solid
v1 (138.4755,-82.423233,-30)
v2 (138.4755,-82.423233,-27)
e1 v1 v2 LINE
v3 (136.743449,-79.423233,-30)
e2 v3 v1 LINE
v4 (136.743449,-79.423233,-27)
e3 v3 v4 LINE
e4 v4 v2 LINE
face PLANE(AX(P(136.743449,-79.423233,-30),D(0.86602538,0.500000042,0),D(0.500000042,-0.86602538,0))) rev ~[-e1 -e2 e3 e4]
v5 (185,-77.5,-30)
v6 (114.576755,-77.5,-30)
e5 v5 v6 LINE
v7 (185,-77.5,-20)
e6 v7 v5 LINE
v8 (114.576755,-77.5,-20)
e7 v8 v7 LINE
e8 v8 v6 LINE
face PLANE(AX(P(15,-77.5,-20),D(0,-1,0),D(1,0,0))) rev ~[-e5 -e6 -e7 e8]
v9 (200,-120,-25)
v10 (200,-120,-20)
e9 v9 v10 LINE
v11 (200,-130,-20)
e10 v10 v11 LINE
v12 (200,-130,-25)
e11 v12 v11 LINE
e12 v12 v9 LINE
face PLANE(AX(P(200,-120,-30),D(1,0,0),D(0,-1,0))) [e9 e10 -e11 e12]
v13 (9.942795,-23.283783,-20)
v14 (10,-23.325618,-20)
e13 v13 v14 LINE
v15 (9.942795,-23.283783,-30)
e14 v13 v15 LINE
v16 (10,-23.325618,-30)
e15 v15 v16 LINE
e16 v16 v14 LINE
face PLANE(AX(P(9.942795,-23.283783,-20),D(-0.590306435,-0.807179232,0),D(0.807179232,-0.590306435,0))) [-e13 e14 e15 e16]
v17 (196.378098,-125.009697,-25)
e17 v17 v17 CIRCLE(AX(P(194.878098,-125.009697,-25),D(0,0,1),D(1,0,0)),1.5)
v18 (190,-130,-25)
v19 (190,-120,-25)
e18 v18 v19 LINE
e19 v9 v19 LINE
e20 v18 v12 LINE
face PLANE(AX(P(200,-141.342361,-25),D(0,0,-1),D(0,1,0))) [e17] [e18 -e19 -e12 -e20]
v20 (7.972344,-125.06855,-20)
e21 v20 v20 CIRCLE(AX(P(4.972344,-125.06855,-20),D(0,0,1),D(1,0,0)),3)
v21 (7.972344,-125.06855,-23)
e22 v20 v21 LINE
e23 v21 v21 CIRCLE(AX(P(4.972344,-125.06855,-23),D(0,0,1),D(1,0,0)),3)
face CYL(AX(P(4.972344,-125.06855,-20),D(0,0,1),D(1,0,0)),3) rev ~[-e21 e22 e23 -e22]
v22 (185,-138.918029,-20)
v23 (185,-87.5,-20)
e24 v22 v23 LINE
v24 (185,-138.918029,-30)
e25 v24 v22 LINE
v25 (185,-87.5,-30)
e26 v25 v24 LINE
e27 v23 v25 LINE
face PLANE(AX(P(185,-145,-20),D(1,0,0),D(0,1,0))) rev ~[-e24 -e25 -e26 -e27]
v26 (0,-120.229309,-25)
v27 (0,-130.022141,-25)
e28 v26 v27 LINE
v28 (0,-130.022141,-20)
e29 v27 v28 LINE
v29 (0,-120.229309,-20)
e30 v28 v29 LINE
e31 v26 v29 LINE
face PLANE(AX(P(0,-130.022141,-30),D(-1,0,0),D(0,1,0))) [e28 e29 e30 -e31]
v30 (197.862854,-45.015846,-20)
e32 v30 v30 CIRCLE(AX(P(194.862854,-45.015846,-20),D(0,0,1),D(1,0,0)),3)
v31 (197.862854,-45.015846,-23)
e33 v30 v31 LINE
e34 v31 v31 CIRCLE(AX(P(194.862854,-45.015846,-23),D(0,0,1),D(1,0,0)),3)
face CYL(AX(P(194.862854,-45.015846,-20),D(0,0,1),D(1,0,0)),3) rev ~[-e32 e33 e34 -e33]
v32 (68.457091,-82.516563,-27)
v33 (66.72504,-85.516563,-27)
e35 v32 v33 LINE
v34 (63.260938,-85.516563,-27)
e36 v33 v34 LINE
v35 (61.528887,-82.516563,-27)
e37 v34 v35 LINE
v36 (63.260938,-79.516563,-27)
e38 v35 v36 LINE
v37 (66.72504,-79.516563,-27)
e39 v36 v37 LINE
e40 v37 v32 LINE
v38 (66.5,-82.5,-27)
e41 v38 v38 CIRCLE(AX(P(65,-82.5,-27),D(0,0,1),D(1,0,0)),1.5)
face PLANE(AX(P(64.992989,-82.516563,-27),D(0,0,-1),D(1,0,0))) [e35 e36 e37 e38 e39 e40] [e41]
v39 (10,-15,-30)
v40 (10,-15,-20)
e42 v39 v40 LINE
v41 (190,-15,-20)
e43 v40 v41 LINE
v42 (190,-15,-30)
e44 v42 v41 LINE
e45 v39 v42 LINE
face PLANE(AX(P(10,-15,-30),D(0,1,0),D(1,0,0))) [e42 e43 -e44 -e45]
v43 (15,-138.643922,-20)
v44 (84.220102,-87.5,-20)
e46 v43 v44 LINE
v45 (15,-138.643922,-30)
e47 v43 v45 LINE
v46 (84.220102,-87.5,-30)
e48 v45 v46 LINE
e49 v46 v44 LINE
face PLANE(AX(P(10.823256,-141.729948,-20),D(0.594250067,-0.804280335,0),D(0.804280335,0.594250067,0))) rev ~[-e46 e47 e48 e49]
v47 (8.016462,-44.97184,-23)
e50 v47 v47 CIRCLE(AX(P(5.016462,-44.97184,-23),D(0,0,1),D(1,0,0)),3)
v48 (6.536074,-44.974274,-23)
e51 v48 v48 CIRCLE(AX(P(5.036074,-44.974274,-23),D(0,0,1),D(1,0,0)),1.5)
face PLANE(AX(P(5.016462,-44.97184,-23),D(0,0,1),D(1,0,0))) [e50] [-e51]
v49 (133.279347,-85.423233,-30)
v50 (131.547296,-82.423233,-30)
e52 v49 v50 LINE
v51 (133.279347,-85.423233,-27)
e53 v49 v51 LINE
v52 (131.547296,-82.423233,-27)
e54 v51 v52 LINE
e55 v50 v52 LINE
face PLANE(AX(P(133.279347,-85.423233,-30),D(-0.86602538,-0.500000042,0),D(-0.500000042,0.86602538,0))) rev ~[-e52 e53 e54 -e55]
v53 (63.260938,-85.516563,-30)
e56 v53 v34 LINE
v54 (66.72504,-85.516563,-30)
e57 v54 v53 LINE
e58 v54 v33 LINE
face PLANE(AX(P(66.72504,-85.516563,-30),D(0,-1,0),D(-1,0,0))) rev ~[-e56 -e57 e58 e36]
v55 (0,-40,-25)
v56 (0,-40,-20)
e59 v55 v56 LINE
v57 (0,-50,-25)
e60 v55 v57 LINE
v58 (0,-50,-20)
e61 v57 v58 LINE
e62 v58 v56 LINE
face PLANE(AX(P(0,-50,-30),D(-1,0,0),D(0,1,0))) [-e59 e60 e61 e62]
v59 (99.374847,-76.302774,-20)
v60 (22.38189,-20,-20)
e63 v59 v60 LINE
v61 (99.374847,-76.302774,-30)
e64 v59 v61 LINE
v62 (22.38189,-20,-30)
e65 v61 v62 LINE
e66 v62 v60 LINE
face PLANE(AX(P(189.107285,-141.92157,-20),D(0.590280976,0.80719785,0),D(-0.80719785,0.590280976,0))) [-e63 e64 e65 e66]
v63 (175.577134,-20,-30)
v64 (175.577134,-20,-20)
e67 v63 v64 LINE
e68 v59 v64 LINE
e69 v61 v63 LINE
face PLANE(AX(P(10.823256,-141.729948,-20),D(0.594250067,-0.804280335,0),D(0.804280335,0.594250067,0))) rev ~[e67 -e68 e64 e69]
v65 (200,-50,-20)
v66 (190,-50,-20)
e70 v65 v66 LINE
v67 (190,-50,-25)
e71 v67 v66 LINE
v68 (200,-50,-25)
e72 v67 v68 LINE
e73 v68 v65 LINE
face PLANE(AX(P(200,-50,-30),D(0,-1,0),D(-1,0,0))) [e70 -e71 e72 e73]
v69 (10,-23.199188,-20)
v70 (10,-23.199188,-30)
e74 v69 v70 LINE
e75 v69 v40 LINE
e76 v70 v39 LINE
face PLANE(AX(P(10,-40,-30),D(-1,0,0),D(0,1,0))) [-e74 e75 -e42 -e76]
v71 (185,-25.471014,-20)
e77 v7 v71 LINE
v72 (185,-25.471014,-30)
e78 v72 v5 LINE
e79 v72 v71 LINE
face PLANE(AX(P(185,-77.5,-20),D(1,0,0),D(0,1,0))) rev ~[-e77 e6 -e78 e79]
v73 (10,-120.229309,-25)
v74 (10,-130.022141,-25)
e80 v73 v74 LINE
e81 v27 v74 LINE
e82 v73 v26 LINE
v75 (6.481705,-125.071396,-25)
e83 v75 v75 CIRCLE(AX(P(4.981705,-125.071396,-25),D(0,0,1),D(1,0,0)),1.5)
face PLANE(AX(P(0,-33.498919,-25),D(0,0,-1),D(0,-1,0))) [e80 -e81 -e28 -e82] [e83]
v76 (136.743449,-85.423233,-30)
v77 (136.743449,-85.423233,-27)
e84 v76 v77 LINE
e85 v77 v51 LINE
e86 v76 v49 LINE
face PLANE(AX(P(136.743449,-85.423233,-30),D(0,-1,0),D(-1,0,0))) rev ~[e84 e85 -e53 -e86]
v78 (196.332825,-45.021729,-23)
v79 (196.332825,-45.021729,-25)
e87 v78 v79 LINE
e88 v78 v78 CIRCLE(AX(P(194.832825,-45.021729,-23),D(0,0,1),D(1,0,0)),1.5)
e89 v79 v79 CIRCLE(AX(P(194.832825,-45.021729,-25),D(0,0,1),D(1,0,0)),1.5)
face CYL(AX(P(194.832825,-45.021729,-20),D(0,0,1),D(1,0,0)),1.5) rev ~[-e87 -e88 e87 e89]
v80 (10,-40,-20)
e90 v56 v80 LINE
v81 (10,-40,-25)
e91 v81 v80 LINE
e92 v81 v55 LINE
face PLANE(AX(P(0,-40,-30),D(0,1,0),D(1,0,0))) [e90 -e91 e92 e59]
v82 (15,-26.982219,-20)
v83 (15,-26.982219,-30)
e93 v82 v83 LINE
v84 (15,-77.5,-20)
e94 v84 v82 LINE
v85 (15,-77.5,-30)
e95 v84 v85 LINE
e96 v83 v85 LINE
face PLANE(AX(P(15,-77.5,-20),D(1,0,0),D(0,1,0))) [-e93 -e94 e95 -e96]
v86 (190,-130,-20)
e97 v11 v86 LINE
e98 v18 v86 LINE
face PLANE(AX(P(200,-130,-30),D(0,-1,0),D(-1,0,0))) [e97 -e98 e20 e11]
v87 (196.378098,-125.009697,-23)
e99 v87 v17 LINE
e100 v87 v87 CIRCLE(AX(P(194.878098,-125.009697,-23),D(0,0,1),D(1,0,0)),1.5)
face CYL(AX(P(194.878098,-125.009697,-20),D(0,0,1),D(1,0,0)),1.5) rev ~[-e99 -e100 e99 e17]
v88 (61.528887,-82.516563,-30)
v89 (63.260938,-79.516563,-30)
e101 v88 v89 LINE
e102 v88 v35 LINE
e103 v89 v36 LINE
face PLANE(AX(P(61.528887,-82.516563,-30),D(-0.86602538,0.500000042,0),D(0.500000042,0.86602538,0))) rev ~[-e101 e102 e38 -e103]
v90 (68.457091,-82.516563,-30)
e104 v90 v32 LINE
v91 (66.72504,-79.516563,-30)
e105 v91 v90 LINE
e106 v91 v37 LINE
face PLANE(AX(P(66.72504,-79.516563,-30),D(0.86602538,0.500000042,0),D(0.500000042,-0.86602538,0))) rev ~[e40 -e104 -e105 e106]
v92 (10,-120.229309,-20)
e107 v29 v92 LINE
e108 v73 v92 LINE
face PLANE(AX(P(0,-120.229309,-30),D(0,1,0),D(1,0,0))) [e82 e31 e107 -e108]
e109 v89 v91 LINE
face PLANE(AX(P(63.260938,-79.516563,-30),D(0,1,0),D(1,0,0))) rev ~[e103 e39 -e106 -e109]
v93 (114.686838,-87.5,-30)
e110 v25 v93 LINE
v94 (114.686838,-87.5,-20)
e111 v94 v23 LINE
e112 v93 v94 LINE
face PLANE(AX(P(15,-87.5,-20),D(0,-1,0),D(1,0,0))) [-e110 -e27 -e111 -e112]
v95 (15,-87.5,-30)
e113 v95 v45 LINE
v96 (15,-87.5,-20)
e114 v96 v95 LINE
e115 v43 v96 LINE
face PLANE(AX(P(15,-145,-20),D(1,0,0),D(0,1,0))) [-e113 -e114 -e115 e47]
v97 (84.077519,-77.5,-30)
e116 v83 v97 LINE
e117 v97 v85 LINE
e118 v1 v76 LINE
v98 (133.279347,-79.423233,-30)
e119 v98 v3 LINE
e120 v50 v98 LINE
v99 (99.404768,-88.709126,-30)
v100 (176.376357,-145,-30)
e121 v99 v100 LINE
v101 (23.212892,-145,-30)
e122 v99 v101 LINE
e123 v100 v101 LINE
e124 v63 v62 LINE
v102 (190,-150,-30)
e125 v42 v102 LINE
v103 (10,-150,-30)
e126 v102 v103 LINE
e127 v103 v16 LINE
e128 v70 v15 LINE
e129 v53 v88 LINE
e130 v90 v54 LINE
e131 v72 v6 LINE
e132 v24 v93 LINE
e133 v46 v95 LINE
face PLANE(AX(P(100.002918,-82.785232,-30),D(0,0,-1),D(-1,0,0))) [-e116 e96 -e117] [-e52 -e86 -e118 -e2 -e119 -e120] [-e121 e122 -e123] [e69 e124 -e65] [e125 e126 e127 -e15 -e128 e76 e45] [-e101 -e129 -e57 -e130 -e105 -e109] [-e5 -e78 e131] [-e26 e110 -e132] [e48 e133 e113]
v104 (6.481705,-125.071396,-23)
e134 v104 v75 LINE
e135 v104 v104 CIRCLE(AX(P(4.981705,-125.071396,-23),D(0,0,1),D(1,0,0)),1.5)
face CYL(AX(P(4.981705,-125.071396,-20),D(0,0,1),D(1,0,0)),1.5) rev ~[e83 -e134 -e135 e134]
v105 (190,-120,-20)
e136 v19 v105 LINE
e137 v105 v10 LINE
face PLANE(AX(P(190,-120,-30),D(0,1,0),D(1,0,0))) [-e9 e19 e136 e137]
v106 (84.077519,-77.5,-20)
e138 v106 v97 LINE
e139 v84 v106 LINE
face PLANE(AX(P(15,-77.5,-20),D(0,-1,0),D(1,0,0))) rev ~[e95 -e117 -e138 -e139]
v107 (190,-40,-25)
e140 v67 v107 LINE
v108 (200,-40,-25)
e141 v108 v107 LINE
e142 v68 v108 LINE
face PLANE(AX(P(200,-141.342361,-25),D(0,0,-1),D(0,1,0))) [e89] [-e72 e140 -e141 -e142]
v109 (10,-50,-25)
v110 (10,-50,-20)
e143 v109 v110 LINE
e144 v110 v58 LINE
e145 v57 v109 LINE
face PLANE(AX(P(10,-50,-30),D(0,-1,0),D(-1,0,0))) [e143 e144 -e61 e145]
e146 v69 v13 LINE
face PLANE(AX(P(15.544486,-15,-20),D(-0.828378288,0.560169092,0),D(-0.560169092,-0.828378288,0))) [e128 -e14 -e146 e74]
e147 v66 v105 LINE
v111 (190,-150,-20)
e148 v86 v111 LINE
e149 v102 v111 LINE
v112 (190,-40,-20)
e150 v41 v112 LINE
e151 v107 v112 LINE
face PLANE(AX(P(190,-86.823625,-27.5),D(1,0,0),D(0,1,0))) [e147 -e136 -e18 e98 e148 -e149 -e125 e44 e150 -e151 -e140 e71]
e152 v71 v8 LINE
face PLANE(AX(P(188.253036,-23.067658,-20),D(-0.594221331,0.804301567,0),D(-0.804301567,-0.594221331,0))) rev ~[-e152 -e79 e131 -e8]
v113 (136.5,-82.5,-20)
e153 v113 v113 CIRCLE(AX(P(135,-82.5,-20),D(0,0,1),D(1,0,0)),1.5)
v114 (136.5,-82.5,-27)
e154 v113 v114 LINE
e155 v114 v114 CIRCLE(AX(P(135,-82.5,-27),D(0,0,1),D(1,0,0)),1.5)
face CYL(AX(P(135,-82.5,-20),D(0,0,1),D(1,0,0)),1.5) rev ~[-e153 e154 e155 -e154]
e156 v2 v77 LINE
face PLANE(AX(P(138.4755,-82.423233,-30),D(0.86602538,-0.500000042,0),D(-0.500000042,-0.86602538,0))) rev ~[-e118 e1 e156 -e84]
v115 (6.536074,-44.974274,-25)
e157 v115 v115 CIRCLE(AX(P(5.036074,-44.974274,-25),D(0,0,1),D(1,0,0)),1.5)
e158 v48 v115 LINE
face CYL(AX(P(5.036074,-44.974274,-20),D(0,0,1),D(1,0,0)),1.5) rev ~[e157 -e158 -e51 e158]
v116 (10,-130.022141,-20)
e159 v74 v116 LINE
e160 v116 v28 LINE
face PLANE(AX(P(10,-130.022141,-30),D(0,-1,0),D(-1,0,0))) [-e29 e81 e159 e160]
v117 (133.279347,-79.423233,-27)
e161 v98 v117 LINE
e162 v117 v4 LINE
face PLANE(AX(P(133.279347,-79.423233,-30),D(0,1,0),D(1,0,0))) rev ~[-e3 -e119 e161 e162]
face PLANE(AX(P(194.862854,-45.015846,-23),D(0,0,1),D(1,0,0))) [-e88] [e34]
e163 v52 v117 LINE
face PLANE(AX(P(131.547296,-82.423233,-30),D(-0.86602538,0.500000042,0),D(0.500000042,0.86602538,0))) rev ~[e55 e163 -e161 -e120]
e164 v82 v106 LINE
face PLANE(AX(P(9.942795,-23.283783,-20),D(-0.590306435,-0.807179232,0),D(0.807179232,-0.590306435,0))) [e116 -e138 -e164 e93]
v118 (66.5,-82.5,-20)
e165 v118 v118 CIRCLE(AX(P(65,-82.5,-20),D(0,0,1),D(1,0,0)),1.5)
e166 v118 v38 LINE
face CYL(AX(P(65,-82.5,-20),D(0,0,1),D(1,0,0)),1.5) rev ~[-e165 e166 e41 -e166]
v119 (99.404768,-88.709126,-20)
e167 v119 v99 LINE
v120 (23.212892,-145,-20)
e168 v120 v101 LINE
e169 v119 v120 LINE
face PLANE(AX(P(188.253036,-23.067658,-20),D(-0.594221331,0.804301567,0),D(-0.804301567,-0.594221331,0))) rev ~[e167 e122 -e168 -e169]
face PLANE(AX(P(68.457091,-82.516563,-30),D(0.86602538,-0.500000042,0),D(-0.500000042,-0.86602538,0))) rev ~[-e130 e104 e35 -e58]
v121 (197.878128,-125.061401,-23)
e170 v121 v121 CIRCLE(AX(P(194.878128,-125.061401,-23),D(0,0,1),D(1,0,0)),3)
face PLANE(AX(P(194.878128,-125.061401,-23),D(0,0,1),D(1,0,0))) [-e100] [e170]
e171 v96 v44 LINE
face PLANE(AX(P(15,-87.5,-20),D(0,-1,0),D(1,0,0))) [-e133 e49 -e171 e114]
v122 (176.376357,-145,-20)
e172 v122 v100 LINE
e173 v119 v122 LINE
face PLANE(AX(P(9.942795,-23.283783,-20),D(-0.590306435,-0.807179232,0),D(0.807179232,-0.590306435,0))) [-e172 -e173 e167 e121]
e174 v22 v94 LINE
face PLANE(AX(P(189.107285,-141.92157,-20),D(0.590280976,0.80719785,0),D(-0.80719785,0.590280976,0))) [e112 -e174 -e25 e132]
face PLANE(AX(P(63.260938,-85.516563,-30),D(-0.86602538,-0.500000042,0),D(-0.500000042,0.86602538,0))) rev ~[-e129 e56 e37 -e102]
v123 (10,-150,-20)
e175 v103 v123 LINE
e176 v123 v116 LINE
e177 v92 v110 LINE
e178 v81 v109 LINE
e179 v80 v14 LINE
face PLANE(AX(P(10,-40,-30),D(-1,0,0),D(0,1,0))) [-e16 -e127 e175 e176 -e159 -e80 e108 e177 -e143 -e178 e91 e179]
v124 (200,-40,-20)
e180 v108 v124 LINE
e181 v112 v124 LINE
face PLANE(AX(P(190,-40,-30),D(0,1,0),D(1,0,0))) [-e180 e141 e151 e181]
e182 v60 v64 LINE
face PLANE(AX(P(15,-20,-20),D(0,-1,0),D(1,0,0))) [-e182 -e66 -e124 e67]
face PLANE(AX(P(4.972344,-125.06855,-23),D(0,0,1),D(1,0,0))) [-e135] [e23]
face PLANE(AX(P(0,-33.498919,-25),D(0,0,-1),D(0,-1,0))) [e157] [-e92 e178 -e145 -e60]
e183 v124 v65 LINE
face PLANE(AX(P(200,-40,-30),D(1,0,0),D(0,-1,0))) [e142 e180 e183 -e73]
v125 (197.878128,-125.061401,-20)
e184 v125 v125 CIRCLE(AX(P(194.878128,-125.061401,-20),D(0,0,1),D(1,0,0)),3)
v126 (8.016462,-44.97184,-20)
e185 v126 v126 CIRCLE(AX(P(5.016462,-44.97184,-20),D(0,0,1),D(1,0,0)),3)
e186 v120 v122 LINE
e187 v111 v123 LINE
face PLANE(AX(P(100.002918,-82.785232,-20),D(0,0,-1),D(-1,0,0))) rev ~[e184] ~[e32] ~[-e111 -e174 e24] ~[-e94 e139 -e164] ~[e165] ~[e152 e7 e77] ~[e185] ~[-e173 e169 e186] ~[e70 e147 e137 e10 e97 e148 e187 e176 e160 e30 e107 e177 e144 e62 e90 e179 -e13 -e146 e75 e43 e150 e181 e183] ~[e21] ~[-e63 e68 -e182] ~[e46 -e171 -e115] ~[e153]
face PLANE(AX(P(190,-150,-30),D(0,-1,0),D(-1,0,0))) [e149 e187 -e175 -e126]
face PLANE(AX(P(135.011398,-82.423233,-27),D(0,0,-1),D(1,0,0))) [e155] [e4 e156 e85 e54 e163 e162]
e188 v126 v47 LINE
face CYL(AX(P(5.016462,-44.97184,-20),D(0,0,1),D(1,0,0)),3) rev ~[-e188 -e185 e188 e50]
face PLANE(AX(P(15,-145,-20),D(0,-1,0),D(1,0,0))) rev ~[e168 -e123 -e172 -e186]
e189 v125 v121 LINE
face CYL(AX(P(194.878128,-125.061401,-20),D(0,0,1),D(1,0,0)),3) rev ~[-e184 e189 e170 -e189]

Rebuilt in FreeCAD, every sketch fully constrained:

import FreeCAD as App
import Part
import Sketcher
Q = App.Units.Quantity

doc = App.newDocument("Part")
body = doc.addObject("PartDesign::Body", "Body")

sketch1 = body.newObject("Sketcher::SketchObject", "Sketch")
sketch1.AttachmentSupport = (doc.getObject("XY_Plane"), [""])
sketch1.MapMode = "FlatFace"
sketch1.AttachmentOffset = App.Placement(App.Vector(0, 0, -30), App.Rotation())
sketch1.addGeometry(Part.LineSegment(App.Vector(0, -50, 0), App.Vector(10, -50, 0)), False)
sketch1.addGeometry(Part.LineSegment(App.Vector(10, -50, 0), App.Vector(10, -120, 0)), False)
sketch1.addGeometry(Part.LineSegment(App.Vector(10, -120, 0), App.Vector(0, -120, 0)), False)
sketch1.addGeometry(Part.LineSegment(App.Vector(0, -120, 0), App.Vector(0, -130, 0)), False)
sketch1.addGeometry(Part.LineSegment(App.Vector(0, -130, 0), App.Vector(10, -130, 0)), False)
sketch1.addGeometry(Part.LineSegment(App.Vector(10, -130, 0), App.Vector(10, -150, 0)), False)
sketch1.addGeometry(Part.LineSegment(App.Vector(10, -150, 0), App.Vector(190, -150, 0)), False)
sketch1.addGeometry(Part.LineSegment(App.Vector(190, -150, 0), App.Vector(190, -130, 0)), False)
sketch1.addGeometry(Part.LineSegment(App.Vector(190, -130, 0), App.Vector(200, -130, 0)), False)
sketch1.addGeometry(Part.LineSegment(App.Vector(200, -130, 0), App.Vector(200, -120, 0)), False)
sketch1.addGeometry(Part.LineSegment(App.Vector(200, -120, 0), App.Vector(190, -120, 0)), False)
sketch1.addGeometry(Part.LineSegment(App.Vector(190, -120, 0), App.Vector(190, -50, 0)), False)
sketch1.addGeometry(Part.LineSegment(App.Vector(190, -50, 0), App.Vector(200, -50, 0)), False)
sketch1.addGeometry(Part.LineSegment(App.Vector(200, -50, 0), App.Vector(200, -40, 0)), False)
sketch1.addGeometry(Part.LineSegment(App.Vector(200, -40, 0), App.Vector(190, -40, 0)), False)
sketch1.addGeometry(Part.LineSegment(App.Vector(190, -40, 0), App.Vector(190, -15, 0)), False)
sketch1.addGeometry(Part.LineSegment(App.Vector(190, -15, 0), App.Vector(10, -15, 0)), False)
sketch1.addGeometry(Part.LineSegment(App.Vector(10, -15, 0), App.Vector(10, -40, 0)), False)
sketch1.addGeometry(Part.LineSegment(App.Vector(10, -40, 0), App.Vector(0, -40, 0)), False)
sketch1.addGeometry(Part.LineSegment(App.Vector(0, -40, 0), App.Vector(0, -50, 0)), False)
sketch1.addConstraint(Sketcher.Constraint("Coincident", 0, 2, 1, 1))
sketch1.addConstraint(Sketcher.Constraint("Coincident", 1, 2, 2, 1))
sketch1.addConstraint(Sketcher.Constraint("Coincident", 2, 2, 3, 1))
sketch1.addConstraint(Sketcher.Constraint("Coincident", 3, 2, 4, 1))
sketch1.addConstraint(Sketcher.Constraint("Coincident", 4, 2, 5, 1))
sketch1.addConstraint(Sketcher.Constraint("Coincident", 5, 2, 6, 1))
sketch1.addConstraint(Sketcher.Constraint("Coincident", 6, 2, 7, 1))
sketch1.addConstraint(Sketcher.Constraint("Coincident", 7, 2, 8, 1))
sketch1.addConstraint(Sketcher.Constraint("Coincident", 8, 2, 9, 1))
sketch1.addConstraint(Sketcher.Constraint("Coincident", 9, 2, 10, 1))
sketch1.addConstraint(Sketcher.Constraint("Coincident", 10, 2, 11, 1))
sketch1.addConstraint(Sketcher.Constraint("Coincident", 11, 2, 12, 1))
sketch1.addConstraint(Sketcher.Constraint("Coincident", 12, 2, 13, 1))
sketch1.addConstraint(Sketcher.Constraint("Coincident", 13, 2, 14, 1))
sketch1.addConstraint(Sketcher.Constraint("Coincident", 14, 2, 15, 1))
sketch1.addConstraint(Sketcher.Constraint("Coincident", 15, 2, 16, 1))
sketch1.addConstraint(Sketcher.Constraint("Coincident", 16, 2, 17, 1))
sketch1.addConstraint(Sketcher.Constraint("Coincident", 17, 2, 18, 1))
sketch1.addConstraint(Sketcher.Constraint("Coincident", 18, 2, 19, 1))
sketch1.addConstraint(Sketcher.Constraint("Coincident", 19, 2, 0, 1))
sketch1.addConstraint(Sketcher.Constraint("Horizontal", 0))
sketch1.addConstraint(Sketcher.Constraint("Vertical", 1))
sketch1.addConstraint(Sketcher.Constraint("Horizontal", 2))
sketch1.addConstraint(Sketcher.Constraint("Vertical", 3))
sketch1.addConstraint(Sketcher.Constraint("Horizontal", 4))
sketch1.addConstraint(Sketcher.Constraint("Vertical", 5))
sketch1.addConstraint(Sketcher.Constraint("Horizontal", 6))
sketch1.addConstraint(Sketcher.Constraint("Vertical", 7))
sketch1.addConstraint(Sketcher.Constraint("Horizontal", 8))
sketch1.addConstraint(Sketcher.Constraint("Vertical", 9))
sketch1.addConstraint(Sketcher.Constraint("Horizontal", 10))
sketch1.addConstraint(Sketcher.Constraint("Vertical", 11))
sketch1.addConstraint(Sketcher.Constraint("Horizontal", 12))
sketch1.addConstraint(Sketcher.Constraint("Vertical", 13))
sketch1.addConstraint(Sketcher.Constraint("Horizontal", 14))
sketch1.addConstraint(Sketcher.Constraint("Vertical", 15))
sketch1.addConstraint(Sketcher.Constraint("Horizontal", 16))
sketch1.addConstraint(Sketcher.Constraint("Vertical", 17))
sketch1.addConstraint(Sketcher.Constraint("Horizontal", 18))
sketch1.addConstraint(Sketcher.Constraint("Vertical", 19))
sketch1.addConstraint(Sketcher.Constraint("PointOnObject", 2, 2, -2))
sketch1.addConstraint(Sketcher.Constraint("PointOnObject", 18, 2, -2))
sketch1.addConstraint(Sketcher.Constraint("Horizontal", 0, 2, 11, 2))
sketch1.addConstraint(Sketcher.Constraint("Horizontal", 14, 2, 17, 2))
sketch1.addConstraint(Sketcher.Constraint("Vertical", 1, 2, 4, 2))
sketch1.addConstraint(Sketcher.Constraint("Vertical", 7, 2, 10, 2))
sketch1.addConstraint(Sketcher.Constraint("Vertical", 9, 2, 12, 2))
sketch1.addConstraint(Sketcher.Constraint("Vertical", 11, 2, 14, 2))
sketch1.addConstraint(Sketcher.Constraint("Vertical", 5, 2, 16, 2))
sketch1.addConstraint(Sketcher.Constraint("Equal", 4, 8))
sketch1.addConstraint(Sketcher.Constraint("Equal", 18, 9))
sketch1.addConstraint(Sketcher.Constraint("Equal", 9, 13))
sketch1.addConstraint(Sketcher.Constraint("DistanceX", 0, 1, 0, 2, Q("10 mm")))
sketch1.addConstraint(Sketcher.Constraint("DistanceX", 6, 1, 6, 2, Q("180 mm")))
sketch1.addConstraint(Sketcher.Constraint("DistanceY", 7, 1, 7, 2, Q("20 mm")))
sketch1.addConstraint(Sketcher.Constraint("DistanceY", 11, 1, 11, 2, Q("70 mm")))
sketch1.addConstraint(Sketcher.Constraint("DistanceY", 15, 1, 15, 2, Q("25 mm")))
sketch1.addConstraint(Sketcher.Constraint("DistanceY", 0, 2, -1, 1, Q("50 mm")))
sketch1.addConstraint(Sketcher.Constraint("DistanceY", 1, 2, 1, 1, Q("70.229309 mm")))
sketch1.addConstraint(Sketcher.Constraint("DistanceY", 5, 2, 5, 1, Q("19.977859 mm")))
pad1 = body.newObject("PartDesign::Pad", "Pad")
pad1.Profile = sketch1
pad1.Length = 10

sketch2 = body.newObject("Sketcher::SketchObject", "Sketch001")
sketch2.AttachmentSupport = (doc.getObject("XY_Plane"), [""])
sketch2.MapMode = "FlatFace"
sketch2.AttachmentOffset = App.Placement(App.Vector(0, 0, -20), App.Rotation())
sketch2.addGeometry(Part.Circle(App.Vector(65, -82.5, 0), App.Vector(0, 0, 1), 1.5), False)
sketch2.addGeometry(Part.Circle(App.Vector(135, -82.5, 0), App.Vector(0, 0, 1), 1.5), False)
sketch2.addGeometry(Part.LineSegment(App.Vector(15, -20, 0), App.Vector(15, -77.5, 0)), False)
sketch2.addGeometry(Part.LineSegment(App.Vector(15, -77.5, 0), App.Vector(185, -77.5, 0)), False)
sketch2.addGeometry(Part.LineSegment(App.Vector(185, -77.5, 0), App.Vector(185, -20, 0)), False)
sketch2.addGeometry(Part.LineSegment(App.Vector(185, -20, 0), App.Vector(15, -20, 0)), False)
sketch2.addGeometry(Part.LineSegment(App.Vector(15, -87.5, 0), App.Vector(15, -145, 0)), False)
sketch2.addGeometry(Part.LineSegment(App.Vector(15, -145, 0), App.Vector(185, -145, 0)), False)
sketch2.addGeometry(Part.LineSegment(App.Vector(185, -145, 0), App.Vector(185, -87.5, 0)), False)
sketch2.addGeometry(Part.LineSegment(App.Vector(185, -87.5, 0), App.Vector(15, -87.5, 0)), False)
sketch2.addConstraint(Sketcher.Constraint("Coincident", 2, 2, 3, 1))
sketch2.addConstraint(Sketcher.Constraint("Coincident", 3, 2, 4, 1))
sketch2.addConstraint(Sketcher.Constraint("Coincident", 4, 2, 5, 1))
sketch2.addConstraint(Sketcher.Constraint("Coincident", 5, 2, 2, 1))
sketch2.addConstraint(Sketcher.Constraint("Coincident", 6, 2, 7, 1))
sketch2.addConstraint(Sketcher.Constraint("Coincident", 7, 2, 8, 1))
sketch2.addConstraint(Sketcher.Constraint("Coincident", 8, 2, 9, 1))
sketch2.addConstraint(Sketcher.Constraint("Coincident", 9, 2, 6, 1))
sketch2.addConstraint(Sketcher.Constraint("Vertical", 2))
sketch2.addConstraint(Sketcher.Constraint("Horizontal", 3))
sketch2.addConstraint(Sketcher.Constraint("Vertical", 4))
sketch2.addConstraint(Sketcher.Constraint("Horizontal", 5))
sketch2.addConstraint(Sketcher.Constraint("Vertical", 6))
sketch2.addConstraint(Sketcher.Constraint("Horizontal", 7))
sketch2.addConstraint(Sketcher.Constraint("Vertical", 8))
sketch2.addConstraint(Sketcher.Constraint("Horizontal", 9))
sketch2.addConstraint(Sketcher.Constraint("Equal", 0, 1))
sketch2.addConstraint(Sketcher.Constraint("Horizontal", 0, 3, 1, 3))
sketch2.addConstraint(Sketcher.Constraint("Vertical", 5, 2, 6, 2))
sketch2.addConstraint(Sketcher.Constraint("Vertical", 4, 2, 7, 2))
sketch2.addConstraint(Sketcher.Constraint("Equal", 4, 6))
sketch2.addConstraint(Sketcher.Constraint("Diameter", 0, Q("3 mm")))
sketch2.addConstraint(Sketcher.Constraint("DistanceX", 3, 1, 3, 2, Q("170 mm")))
sketch2.addConstraint(Sketcher.Constraint("DistanceY", 2, 2, 2, 1, Q("57.5 mm")))
sketch2.addConstraint(Sketcher.Constraint("DistanceX", -1, 1, 0, 3, Q("65 mm")))
sketch2.addConstraint(Sketcher.Constraint("DistanceX", -1, 1, 1, 3, Q("135 mm")))
sketch2.addConstraint(Sketcher.Constraint("DistanceX", -1, 1, 2, 2, Q("15 mm")))
sketch2.addConstraint(Sketcher.Constraint("DistanceY", 4, 2, -1, 1, Q("20 mm")))
sketch2.addConstraint(Sketcher.Constraint("DistanceY", 6, 2, -1, 1, Q("145 mm")))
sketch2.addConstraint(Sketcher.Constraint("DistanceY", 0, 3, 2, 2, Q("5 mm")))
pocket1 = body.newObject("PartDesign::Pocket", "Pocket")
pocket1.Profile = sketch2
pocket1.Length = 11

sketch3 = body.newObject("Sketcher::SketchObject", "Sketch002")
sketch3.AttachmentSupport = (doc.getObject("XY_Plane"), [""])
sketch3.MapMode = "FlatFace"
sketch3.AttachmentOffset = App.Placement(App.Vector(0, 0, -20), App.Rotation())
sketch3.addGeometry(Part.LineSegment(App.Vector(16, -15, 0), App.Vector(10, -23, 0)), False)
sketch3.addGeometry(Part.LineSegment(App.Vector(10, -23, 0), App.Vector(183, -150, 0)), False)
sketch3.addGeometry(Part.LineSegment(App.Vector(183, -150, 0), App.Vector(189, -142, 0)), False)
sketch3.addGeometry(Part.LineSegment(App.Vector(189, -142, 0), App.Vector(16, -15, 0)), False)
sketch3.addConstraint(Sketcher.Constraint("Coincident", 0, 2, 1, 1))
sketch3.addConstraint(Sketcher.Constraint("Coincident", 1, 2, 2, 1))
sketch3.addConstraint(Sketcher.Constraint("Coincident", 2, 2, 3, 1))
sketch3.addConstraint(Sketcher.Constraint("Coincident", 3, 2, 0, 1))
sketch3.addConstraint(Sketcher.Constraint("Equal", 0, 2))
sketch3.addConstraint(Sketcher.Constraint("Distance", 0, Q("10 mm")))
sketch3.addConstraint(Sketcher.Constraint("DistanceY", 1, 2, -1, 1, Q("150 mm")))
sketch3.addConstraint(Sketcher.Constraint("DistanceY", 3, 2, -1, 1, Q("15 mm")))
sketch3.addConstraint(Sketcher.Constraint("DistanceX", 3, 2, 2, 2, Q("173.562799 mm")))
sketch3.addConstraint(Sketcher.Constraint("DistanceX", -1, 1, 1, 2, Q("183.213308 mm")))
sketch3.addConstraint(Sketcher.Constraint("DistanceY", 2, 2, -1, 1, Q("141.92157 mm")))
sketch3.addConstraint(Sketcher.Constraint("DistanceX", 0, 2, 2, 2, Q("179.16449 mm")))
pad2 = body.newObject("PartDesign::Pad", "Pad001")
pad2.Profile = sketch3
pad2.Length = 10
pad2.Reversed = True

sketch4 = body.newObject("Sketcher::SketchObject", "Sketch003")
sketch4.AttachmentSupport = (doc.getObject("XY_Plane"), [""])
sketch4.MapMode = "FlatFace"
sketch4.AttachmentOffset = App.Placement(App.Vector(0, 0, -20), App.Rotation())
sketch4.addGeometry(Part.LineSegment(App.Vector(11, -142, 0), App.Vector(16, -150, 0)), False)
sketch4.addGeometry(Part.LineSegment(App.Vector(16, -150, 0), App.Vector(188, -23, 0)), False)
sketch4.addGeometry(Part.LineSegment(App.Vector(188, -23, 0), App.Vector(182, -15, 0)), False)
sketch4.addGeometry(Part.LineSegment(App.Vector(182, -15, 0), App.Vector(11, -142, 0)), False)
sketch4.addConstraint(Sketcher.Constraint("Coincident", 0, 2, 1, 1))
sketch4.addConstraint(Sketcher.Constraint("Coincident", 1, 2, 2, 1))
sketch4.addConstraint(Sketcher.Constraint("Coincident", 2, 2, 3, 1))
sketch4.addConstraint(Sketcher.Constraint("Coincident", 3, 2, 0, 1))
sketch4.addConstraint(Sketcher.Constraint("Equal", 0, 2))
sketch4.addConstraint(Sketcher.Constraint("Distance", 0, Q("10 mm")))
sketch4.addConstraint(Sketcher.Constraint("DistanceY", 0, 2, -1, 1, Q("150 mm")))
sketch4.addConstraint(Sketcher.Constraint("DistanceY", 2, 2, -1, 1, Q("15 mm")))
sketch4.addConstraint(Sketcher.Constraint("Distance", 3, Q("213.260301 mm")))
sketch4.addConstraint(Sketcher.Constraint("DistanceX", -1, 1, 0, 2, Q("16.445199 mm")))
sketch4.addConstraint(Sketcher.Constraint("DistanceY", 1, 2, -1, 1, Q("23.067658 mm")))
sketch4.addConstraint(Sketcher.Constraint("DistanceX", -1, 1, 2, 2, Q("182.344322 mm")))
pad3 = body.newObject("PartDesign::Pad", "Pad002")
pad3.Profile = sketch4
pad3.Length = 10
pad3.Reversed = True

sketch5 = body.newObject("Sketcher::SketchObject", "Sketch004")
sketch5.AttachmentSupport = (doc.getObject("XY_Plane"), [""])
sketch5.MapMode = "FlatFace"
sketch5.AttachmentOffset = App.Placement(App.Vector(0, 0, -30), App.Rotation())
sketch5.addGeometry(Part.LineSegment(App.Vector(66.7, -85.5, 0), App.Vector(63.3, -85.5, 0)), False)
sketch5.addGeometry(Part.LineSegment(App.Vector(63.3, -85.5, 0), App.Vector(61.5, -82.5, 0)), False)
sketch5.addGeometry(Part.LineSegment(App.Vector(61.5, -82.5, 0), App.Vector(63.3, -79.5, 0)), False)
sketch5.addGeometry(Part.LineSegment(App.Vector(63.3, -79.5, 0), App.Vector(66.7, -79.5, 0)), False)
sketch5.addGeometry(Part.LineSegment(App.Vector(66.7, -79.5, 0), App.Vector(68.5, -82.5, 0)), False)
sketch5.addGeometry(Part.LineSegment(App.Vector(68.5, -82.5, 0), App.Vector(66.7, -85.5, 0)), False)
sketch5.addGeometry(Part.LineSegment(App.Vector(136.7, -85.4, 0), App.Vector(133.3, -85.4, 0)), False)
sketch5.addGeometry(Part.LineSegment(App.Vector(133.3, -85.4, 0), App.Vector(131.5, -82.4, 0)), False)
sketch5.addGeometry(Part.LineSegment(App.Vector(131.5, -82.4, 0), App.Vector(133.3, -79.4, 0)), False)
sketch5.addGeometry(Part.LineSegment(App.Vector(133.3, -79.4, 0), App.Vector(136.7, -79.4, 0)), False)
sketch5.addGeometry(Part.LineSegment(App.Vector(136.7, -79.4, 0), App.Vector(138.5, -82.4, 0)), False)
sketch5.addGeometry(Part.LineSegment(App.Vector(138.5, -82.4, 0), App.Vector(136.7, -85.4, 0)), False)
sketch5.addConstraint(Sketcher.Constraint("Coincident", 0, 2, 1, 1))
sketch5.addConstraint(Sketcher.Constraint("Coincident", 1, 2, 2, 1))
sketch5.addConstraint(Sketcher.Constraint("Coincident", 2, 2, 3, 1))
sketch5.addConstraint(Sketcher.Constraint("Coincident", 3, 2, 4, 1))
sketch5.addConstraint(Sketcher.Constraint("Coincident", 4, 2, 5, 1))
sketch5.addConstraint(Sketcher.Constraint("Coincident", 5, 2, 0, 1))
sketch5.addConstraint(Sketcher.Constraint("Coincident", 6, 2, 7, 1))
sketch5.addConstraint(Sketcher.Constraint("Coincident", 7, 2, 8, 1))
sketch5.addConstraint(Sketcher.Constraint("Coincident", 8, 2, 9, 1))
sketch5.addConstraint(Sketcher.Constraint("Coincident", 9, 2, 10, 1))
sketch5.addConstraint(Sketcher.Constraint("Coincident", 10, 2, 11, 1))
sketch5.addConstraint(Sketcher.Constraint("Coincident", 11, 2, 6, 1))
sketch5.addConstraint(Sketcher.Constraint("Horizontal", 0))
sketch5.addConstraint(Sketcher.Constraint("Horizontal", 3))
sketch5.addConstraint(Sketcher.Constraint("Horizontal", 6))
sketch5.addConstraint(Sketcher.Constraint("Horizontal", 9))
sketch5.addConstraint(Sketcher.Constraint("Parallel", 1, 4))
sketch5.addConstraint(Sketcher.Constraint("Parallel", 2, 5))
sketch5.addConstraint(Sketcher.Constraint("Parallel", 4, 7))
sketch5.addConstraint(Sketcher.Constraint("Parallel", 5, 8))
sketch5.addConstraint(Sketcher.Constraint("Parallel", 7, 10))
sketch5.addConstraint(Sketcher.Constraint("Parallel", 8, 11))
sketch5.addConstraint(Sketcher.Constraint("Horizontal", 1, 2, 4, 2))
sketch5.addConstraint(Sketcher.Constraint("Horizontal", 7, 2, 10, 2))
sketch5.addConstraint(Sketcher.Constraint("Vertical", 0, 2, 2, 2))
sketch5.addConstraint(Sketcher.Constraint("Vertical", 3, 2, 5, 2))
sketch5.addConstraint(Sketcher.Constraint("Vertical", 6, 2, 8, 2))
sketch5.addConstraint(Sketcher.Constraint("Equal", 3, 6))
sketch5.addConstraint(Sketcher.Constraint("Equal", 5, 7))
sketch5.addConstraint(Sketcher.Constraint("Angle", 1, Q("120.000003 deg")))
sketch5.addConstraint(Sketcher.Constraint("DistanceY", 0, 2, 1, 2, Q("3 mm")))
sketch5.addConstraint(Sketcher.Constraint("DistanceX", 6, 2, 6, 1, Q("3.464102 mm")))
sketch5.addConstraint(Sketcher.Constraint("DistanceX", -1, 1, 10, 2, Q("138.4755 mm")))
sketch5.addConstraint(Sketcher.Constraint("DistanceX", -1, 1, 0, 2, Q("63.260938 mm")))
sketch5.addConstraint(Sketcher.Constraint("DistanceY", 6, 2, 4, 2, Q("2.90667 mm")))
sketch5.addConstraint(Sketcher.Constraint("DistanceY", 0, 2, -1, 1, Q("85.516563 mm")))
pocket2 = body.newObject("PartDesign::Pocket", "Pocket001")
pocket2.Profile = sketch5
pocket2.Length = 3
pocket2.Reversed = True

sketch6 = body.newObject("Sketcher::SketchObject", "Sketch005")
sketch6.AttachmentSupport = (doc.getObject("YZ_Plane"), [""])
sketch6.MapMode = "FlatFace"
sketch6.addGeometry(Part.LineSegment(App.Vector(-33, -25, 0), App.Vector(-33, -30, 0)), False)
sketch6.addGeometry(Part.LineSegment(App.Vector(-33, -30, 0), App.Vector(-137, -30, 0)), False)
sketch6.addGeometry(Part.LineSegment(App.Vector(-137, -30, 0), App.Vector(-137, -25, 0)), False)
sketch6.addGeometry(Part.LineSegment(App.Vector(-137, -25, 0), App.Vector(-33, -25, 0)), False)
sketch6.addConstraint(Sketcher.Constraint("Coincident", 0, 2, 1, 1))
sketch6.addConstraint(Sketcher.Constraint("Coincident", 1, 2, 2, 1))
sketch6.addConstraint(Sketcher.Constraint("Coincident", 2, 2, 3, 1))
sketch6.addConstraint(Sketcher.Constraint("Coincident", 3, 2, 0, 1))
sketch6.addConstraint(Sketcher.Constraint("Vertical", 0))
sketch6.addConstraint(Sketcher.Constraint("Horizontal", 1))
sketch6.addConstraint(Sketcher.Constraint("Vertical", 2))
sketch6.addConstraint(Sketcher.Constraint("Horizontal", 3))
sketch6.addConstraint(Sketcher.Constraint("DistanceY", 0, 2, 0, 1, Q("5 mm")))
sketch6.addConstraint(Sketcher.Constraint("DistanceY", 0, 2, -1, 1, Q("30 mm")))
sketch6.addConstraint(Sketcher.Constraint("DistanceX", 1, 2, 1, 1, Q("103.713421 mm")))
sketch6.addConstraint(Sketcher.Constraint("DistanceX", 0, 2, -1, 1, Q("33.498919 mm")))
pocket3 = body.newObject("PartDesign::Pocket", "Pocket002")
pocket3.Profile = sketch6
pocket3.Length = 10
pocket3.Reversed = True

sketch7 = body.newObject("Sketcher::SketchObject", "Sketch006")
sketch7.AttachmentSupport = (doc.getObject("YZ_Plane"), [""])
sketch7.MapMode = "FlatFace"
sketch7.AttachmentOffset = App.Placement(App.Vector(0, 0, 200), App.Rotation())
sketch7.addGeometry(Part.LineSegment(App.Vector(-141, -25, 0), App.Vector(-141, -30, 0)), False)
sketch7.addGeometry(Part.LineSegment(App.Vector(-141, -30, 0), App.Vector(-32, -30, 0)), False)
sketch7.addGeometry(Part.LineSegment(App.Vector(-32, -30, 0), App.Vector(-32, -25, 0)), False)
sketch7.addGeometry(Part.LineSegment(App.Vector(-32, -25, 0), App.Vector(-141, -25, 0)), False)
sketch7.addConstraint(Sketcher.Constraint("Coincident", 0, 2, 1, 1))
sketch7.addConstraint(Sketcher.Constraint("Coincident", 1, 2, 2, 1))
sketch7.addConstraint(Sketcher.Constraint("Coincident", 2, 2, 3, 1))
sketch7.addConstraint(Sketcher.Constraint("Coincident", 3, 2, 0, 1))
sketch7.addConstraint(Sketcher.Constraint("Vertical", 0))
sketch7.addConstraint(Sketcher.Constraint("Horizontal", 1))
sketch7.addConstraint(Sketcher.Constraint("Vertical", 2))
sketch7.addConstraint(Sketcher.Constraint("Horizontal", 3))
sketch7.addConstraint(Sketcher.Constraint("DistanceY", 0, 2, 0, 1, Q("5 mm")))
sketch7.addConstraint(Sketcher.Constraint("DistanceY", 0, 2, -1, 1, Q("30 mm")))
sketch7.addConstraint(Sketcher.Constraint("DistanceX", 1, 1, 1, 2, Q("109.037471 mm")))
sketch7.addConstraint(Sketcher.Constraint("DistanceX", 0, 2, -1, 1, Q("141.342361 mm")))
pocket4 = body.newObject("PartDesign::Pocket", "Pocket003")
pocket4.Profile = sketch7
pocket4.Length = 10

sketch8 = body.newObject("Sketcher::SketchObject", "Sketch007")
sketch8.AttachmentSupport = (doc.getObject("XY_Plane"), [""])
sketch8.MapMode = "FlatFace"
sketch8.AttachmentOffset = App.Placement(App.Vector(0, 0, -20), App.Rotation())
sketch8.addGeometry(Part.Circle(App.Vector(5, -45, 0), App.Vector(0, 0, 1), 1.5), False)
sketch8.addGeometry(Part.Circle(App.Vector(5, -125.1, 0), App.Vector(0, 0, 1), 1.5), False)
sketch8.addGeometry(Part.Circle(App.Vector(194.8, -45, 0), App.Vector(0, 0, 1), 1.5), False)
sketch8.addGeometry(Part.Circle(App.Vector(194.9, -125, 0), App.Vector(0, 0, 1), 1.5), False)
sketch8.addConstraint(Sketcher.Constraint("Equal", 0, 1))
sketch8.addConstraint(Sketcher.Constraint("Equal", 1, 2))
sketch8.addConstraint(Sketcher.Constraint("Equal", 2, 3))
sketch8.addConstraint(Sketcher.Constraint("Diameter", 0, Q("3 mm")))
sketch8.addConstraint(Sketcher.Constraint("DistanceX", -1, 1, 3, 3, Q("194.878098 mm")))
sketch8.addConstraint(Sketcher.Constraint("DistanceY", 1, 3, 3, 3, Q("0.061699 mm")))
sketch8.addConstraint(Sketcher.Constraint("DistanceY", 2, 3, -1, 1, Q("45.021729 mm")))
sketch8.addConstraint(Sketcher.Constraint("DistanceX", 1, 3, 0, 3, Q("0.054369 mm")))
sketch8.addConstraint(Sketcher.Constraint("DistanceY", 1, 3, 0, 3, Q("80.097122 mm")))
sketch8.addConstraint(Sketcher.Constraint("DistanceX", 0, 3, 2, 3, Q("189.796751 mm")))
sketch8.addConstraint(Sketcher.Constraint("DistanceX", -1, 1, 0, 3, Q("5.036074 mm")))
sketch8.addConstraint(Sketcher.Constraint("DistanceY", 0, 3, -1, 1, Q("44.974274 mm")))
pocket5 = body.newObject("PartDesign::Pocket", "Pocket004")
pocket5.Profile = sketch8
pocket5.Length = 5

sketch9 = body.newObject("Sketcher::SketchObject", "Sketch008")
sketch9.AttachmentSupport = (doc.getObject("XY_Plane"), [""])
sketch9.MapMode = "FlatFace"
sketch9.AttachmentOffset = App.Placement(App.Vector(0, 0, -20), App.Rotation())
sketch9.addGeometry(Part.Circle(App.Vector(5, -45, 0), App.Vector(0, 0, 1), 3), False)
sketch9.addGeometry(Part.Circle(App.Vector(5, -125.1, 0), App.Vector(0, 0, 1), 3), False)
sketch9.addGeometry(Part.Circle(App.Vector(194.9, -125.1, 0), App.Vector(0, 0, 1), 3), False)
sketch9.addGeometry(Part.Circle(App.Vector(194.9, -45, 0), App.Vector(0, 0, 1), 3), False)
sketch9.addConstraint(Sketcher.Constraint("Equal", 0, 1))
sketch9.addConstraint(Sketcher.Constraint("Equal", 1, 2))
sketch9.addConstraint(Sketcher.Constraint("Equal", 2, 3))
sketch9.addConstraint(Sketcher.Constraint("Diameter", 0, Q("6 mm")))
sketch9.addConstraint(Sketcher.Constraint("DistanceY", 2, 3, -1, 1, Q("125.061401 mm")))
sketch9.addConstraint(Sketcher.Constraint("DistanceX", -1, 1, 0, 3, Q("5.016462 mm")))
sketch9.addConstraint(Sketcher.Constraint("DistanceY", 0, 3, -1, 1, Q("44.97184 mm")))
sketch9.addConstraint(Sketcher.Constraint("DistanceY", 1, 3, -1, 1, Q("125.06855 mm")))
sketch9.addConstraint(Sketcher.Constraint("DistanceX", -1, 1, 2, 3, Q("194.878128 mm")))
sketch9.addConstraint(Sketcher.Constraint("DistanceX", 1, 3, 0, 3, Q("0.044118 mm")))
sketch9.addConstraint(Sketcher.Constraint("DistanceX", 0, 3, 3, 3, Q("189.846392 mm")))
sketch9.addConstraint(Sketcher.Constraint("DistanceY", 3, 3, -1, 1, Q("45.015846 mm")))
pocket6 = body.newObject("PartDesign::Pocket", "Pocket005")
pocket6.Profile = sketch9
pocket6.Length = 3

doc.recompute()
